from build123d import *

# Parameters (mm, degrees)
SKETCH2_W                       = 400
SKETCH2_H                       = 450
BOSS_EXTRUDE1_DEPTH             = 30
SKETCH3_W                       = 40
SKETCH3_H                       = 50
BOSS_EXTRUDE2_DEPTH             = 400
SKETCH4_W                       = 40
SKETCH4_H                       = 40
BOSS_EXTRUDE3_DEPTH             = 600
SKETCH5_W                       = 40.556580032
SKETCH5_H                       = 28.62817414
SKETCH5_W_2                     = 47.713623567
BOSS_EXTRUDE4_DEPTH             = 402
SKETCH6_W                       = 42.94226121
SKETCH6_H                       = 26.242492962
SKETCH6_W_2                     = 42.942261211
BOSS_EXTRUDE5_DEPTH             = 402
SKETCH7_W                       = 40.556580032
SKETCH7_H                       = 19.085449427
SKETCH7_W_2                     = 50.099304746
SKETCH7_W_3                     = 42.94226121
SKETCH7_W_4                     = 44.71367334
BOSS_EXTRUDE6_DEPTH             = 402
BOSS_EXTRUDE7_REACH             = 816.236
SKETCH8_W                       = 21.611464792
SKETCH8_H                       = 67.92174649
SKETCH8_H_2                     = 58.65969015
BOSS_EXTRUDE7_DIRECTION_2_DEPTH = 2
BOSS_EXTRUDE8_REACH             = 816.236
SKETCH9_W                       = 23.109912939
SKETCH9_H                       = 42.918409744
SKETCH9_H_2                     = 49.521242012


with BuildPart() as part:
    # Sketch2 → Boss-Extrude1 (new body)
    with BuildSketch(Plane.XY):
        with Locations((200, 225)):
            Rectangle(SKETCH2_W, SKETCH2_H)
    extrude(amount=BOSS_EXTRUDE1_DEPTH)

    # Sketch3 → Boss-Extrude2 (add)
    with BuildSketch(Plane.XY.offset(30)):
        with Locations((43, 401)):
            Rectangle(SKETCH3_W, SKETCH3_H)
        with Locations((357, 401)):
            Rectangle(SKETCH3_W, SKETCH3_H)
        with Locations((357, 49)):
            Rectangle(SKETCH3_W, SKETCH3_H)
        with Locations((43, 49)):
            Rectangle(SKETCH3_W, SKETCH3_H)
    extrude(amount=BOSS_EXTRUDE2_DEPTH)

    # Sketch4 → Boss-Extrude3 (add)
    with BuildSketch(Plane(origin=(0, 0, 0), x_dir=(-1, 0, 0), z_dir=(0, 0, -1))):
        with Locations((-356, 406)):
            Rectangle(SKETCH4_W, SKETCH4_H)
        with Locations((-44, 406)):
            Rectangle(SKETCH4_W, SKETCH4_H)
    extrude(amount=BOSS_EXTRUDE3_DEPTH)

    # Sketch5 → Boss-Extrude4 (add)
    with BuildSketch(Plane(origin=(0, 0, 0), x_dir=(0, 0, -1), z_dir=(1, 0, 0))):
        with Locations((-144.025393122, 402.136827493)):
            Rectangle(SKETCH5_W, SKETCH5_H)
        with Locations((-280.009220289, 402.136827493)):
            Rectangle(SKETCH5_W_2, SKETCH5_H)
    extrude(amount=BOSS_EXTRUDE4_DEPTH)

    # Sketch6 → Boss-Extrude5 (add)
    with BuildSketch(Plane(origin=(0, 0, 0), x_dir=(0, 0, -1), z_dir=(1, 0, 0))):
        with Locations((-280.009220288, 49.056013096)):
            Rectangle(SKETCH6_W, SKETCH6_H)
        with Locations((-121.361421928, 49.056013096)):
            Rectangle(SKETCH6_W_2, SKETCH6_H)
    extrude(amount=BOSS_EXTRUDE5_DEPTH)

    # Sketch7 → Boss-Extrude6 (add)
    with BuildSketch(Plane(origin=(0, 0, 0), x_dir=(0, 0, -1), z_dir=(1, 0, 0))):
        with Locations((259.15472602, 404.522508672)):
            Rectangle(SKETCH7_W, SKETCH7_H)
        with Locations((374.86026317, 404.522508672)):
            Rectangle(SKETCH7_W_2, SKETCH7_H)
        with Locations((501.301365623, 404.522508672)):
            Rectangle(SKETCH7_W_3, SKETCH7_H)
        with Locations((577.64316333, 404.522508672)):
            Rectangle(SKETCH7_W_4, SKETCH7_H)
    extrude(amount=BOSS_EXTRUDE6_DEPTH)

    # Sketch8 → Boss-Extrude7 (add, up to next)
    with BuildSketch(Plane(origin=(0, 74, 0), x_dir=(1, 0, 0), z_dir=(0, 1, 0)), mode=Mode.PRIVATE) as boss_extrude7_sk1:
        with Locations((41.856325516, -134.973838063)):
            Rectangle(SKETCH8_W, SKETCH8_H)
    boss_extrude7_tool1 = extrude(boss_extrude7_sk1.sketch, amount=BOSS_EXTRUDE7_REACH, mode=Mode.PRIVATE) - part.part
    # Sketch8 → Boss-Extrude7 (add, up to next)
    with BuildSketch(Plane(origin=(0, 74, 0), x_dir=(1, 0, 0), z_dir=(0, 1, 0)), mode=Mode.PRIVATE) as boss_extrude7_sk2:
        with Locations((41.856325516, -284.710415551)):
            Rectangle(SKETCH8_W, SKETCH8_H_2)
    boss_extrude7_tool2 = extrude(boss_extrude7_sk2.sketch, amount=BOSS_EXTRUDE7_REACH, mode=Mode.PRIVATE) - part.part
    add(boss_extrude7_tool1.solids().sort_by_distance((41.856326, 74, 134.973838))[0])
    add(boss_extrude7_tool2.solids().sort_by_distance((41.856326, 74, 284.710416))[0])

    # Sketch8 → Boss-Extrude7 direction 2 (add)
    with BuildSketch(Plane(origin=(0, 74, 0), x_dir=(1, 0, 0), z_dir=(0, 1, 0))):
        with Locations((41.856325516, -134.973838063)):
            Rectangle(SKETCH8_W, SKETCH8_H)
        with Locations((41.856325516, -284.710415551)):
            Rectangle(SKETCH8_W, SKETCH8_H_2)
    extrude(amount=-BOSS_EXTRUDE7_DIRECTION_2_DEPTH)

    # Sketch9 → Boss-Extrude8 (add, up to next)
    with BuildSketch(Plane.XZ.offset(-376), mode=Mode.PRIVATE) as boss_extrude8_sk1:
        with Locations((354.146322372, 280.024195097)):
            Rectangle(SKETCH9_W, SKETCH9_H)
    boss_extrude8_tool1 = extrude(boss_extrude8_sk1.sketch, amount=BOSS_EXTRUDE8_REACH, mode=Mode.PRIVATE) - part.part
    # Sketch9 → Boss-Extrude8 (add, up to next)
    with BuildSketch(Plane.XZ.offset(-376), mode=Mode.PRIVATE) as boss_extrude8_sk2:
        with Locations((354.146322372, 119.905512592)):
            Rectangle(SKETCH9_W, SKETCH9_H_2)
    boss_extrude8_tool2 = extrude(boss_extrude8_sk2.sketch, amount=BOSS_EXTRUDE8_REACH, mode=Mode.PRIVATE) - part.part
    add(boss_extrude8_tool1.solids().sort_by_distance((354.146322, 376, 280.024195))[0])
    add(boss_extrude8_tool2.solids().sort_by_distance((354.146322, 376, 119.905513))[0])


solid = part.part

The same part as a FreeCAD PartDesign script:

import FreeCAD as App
import Part
import Sketcher
from FreeCAD import Vector

doc = App.newDocument("Part")
body = doc.addObject("PartDesign::Body", "Body")

# Sketch on XY plane
sketch1 = doc.addObject("Sketcher::SketchObject", "Sketch")
body.addObject(sketch1)
sketch1.AttachmentSupport = (doc.XY_Plane, [""])
sketch1.MapMode = "FlatFace"
sketch1.addGeometry([
    Part.LineSegment(Vector(0, 450, 0), Vector(0, 0, 0)),
    Part.LineSegment(Vector(0, 0, 0), Vector(400, 0, 0)),
    Part.LineSegment(Vector(400, 0, 0), Vector(400, 450, 0)),
    Part.LineSegment(Vector(400, 450, 0), Vector(0, 450, 0)),
], False)
sketch1.addConstraint([
    Sketcher.Constraint("Coincident", 0, 2, 1, 1),
    Sketcher.Constraint("Coincident", 1, 2, 2, 1),
    Sketcher.Constraint("Coincident", 2, 2, 3, 1),
    Sketcher.Constraint("Coincident", 3, 2, 0, 1),
    Sketcher.Constraint("Vertical", 0),
    Sketcher.Constraint("Horizontal", 1),
    Sketcher.Constraint("Vertical", 2),
    Sketcher.Constraint("Horizontal", 3),
    Sketcher.Constraint("Coincident", 0, 2, -1, 1),
    Sketcher.Constraint("DistanceX", 1, 1, 1, 2, 400.0),
    Sketcher.Constraint("DistanceY", 0, 2, 0, 1, 450.0),
])
pad1 = doc.addObject("PartDesign::Pad", "Pad")
body.addObject(pad1)
pad1.Profile = sketch1
pad1.Length = 30

# Sketch on XY plane
sketch2 = doc.addObject("Sketcher::SketchObject", "Sketch001")
body.addObject(sketch2)
sketch2.AttachmentSupport = (doc.XY_Plane, [""])
sketch2.MapMode = "FlatFace"
sketch2.AttachmentOffset = App.Placement(Vector(0, 0, 30), App.Rotation())
sketch2.addGeometry([
    Part.LineSegment(Vector(23, 426, 0), Vector(23, 376, 0)),  # 0
    Part.LineSegment(Vector(23, 376, 0), Vector(63, 376, 0)),  # 1
    Part.LineSegment(Vector(63, 376, 0), Vector(63, 426, 0)),  # 2
    Part.LineSegment(Vector(63, 426, 0), Vector(23, 426, 0)),  # 3
    Part.LineSegment(Vector(337, 426, 0), Vector(337, 376, 0)),  # 4
    Part.LineSegment(Vector(337, 376, 0), Vector(377, 376, 0)),  # 5
    Part.LineSegment(Vector(377, 376, 0), Vector(377, 426, 0)),  # 6
    Part.LineSegment(Vector(377, 426, 0), Vector(337, 426, 0)),  # 7
    Part.LineSegment(Vector(337, 74, 0), Vector(337, 24, 0)),  # 8
    Part.LineSegment(Vector(337, 24, 0), Vector(377, 24, 0)),  # 9
    Part.LineSegment(Vector(377, 24, 0), Vector(377, 74, 0)),  # 10
    Part.LineSegment(Vector(377, 74, 0), Vector(337, 74, 0)),  # 11
    Part.LineSegment(Vector(23, 74, 0), Vector(23, 24, 0)),  # 12
    Part.LineSegment(Vector(23, 24, 0), Vector(63, 24, 0)),  # 13
    Part.LineSegment(Vector(63, 24, 0), Vector(63, 74, 0)),  # 14
    Part.LineSegment(Vector(63, 74, 0), Vector(23, 74, 0)),  # 15
], False)
sketch2.addConstraint([
    Sketcher.Constraint("Coincident", 0, 2, 1, 1),
    Sketcher.Constraint("Coincident", 1, 2, 2, 1),
    Sketcher.Constraint("Coincident", 2, 2, 3, 1),
    Sketcher.Constraint("Coincident", 3, 2, 0, 1),
    Sketcher.Constraint("Coincident", 4, 2, 5, 1),
    Sketcher.Constraint("Coincident", 5, 2, 6, 1),
    Sketcher.Constraint("Coincident", 6, 2, 7, 1),
    Sketcher.Constraint("Coincident", 7, 2, 4, 1),
    Sketcher.Constraint("Coincident", 8, 2, 9, 1),
    Sketcher.Constraint("Coincident", 9, 2, 10, 1),
    Sketcher.Constraint("Coincident", 10, 2, 11, 1),
    Sketcher.Constraint("Coincident", 11, 2, 8, 1),
    Sketcher.Constraint("Coincident", 12, 2, 13, 1),
    Sketcher.Constraint("Coincident", 13, 2, 14, 1),
    Sketcher.Constraint("Coincident", 14, 2, 15, 1),
    Sketcher.Constraint("Coincident", 15, 2, 12, 1),
    Sketcher.Constraint("Vertical", 0),
    Sketcher.Constraint("Horizontal", 1),
    Sketcher.Constraint("Vertical", 2),
    Sketcher.Constraint("Horizontal", 3),
    Sketcher.Constraint("Vertical", 4),
    Sketcher.Constraint("Horizontal", 5),
    Sketcher.Constraint("Vertical", 6),
    Sketcher.Constraint("Horizontal", 7),
    Sketcher.Constraint("Vertical", 8),
    Sketcher.Constraint("Horizontal", 9),
    Sketcher.Constraint("Vertical", 10),
    Sketcher.Constraint("Horizontal", 11),
    Sketcher.Constraint("Vertical", 12),
    Sketcher.Constraint("Horizontal", 13),
    Sketcher.Constraint("Vertical", 14),
    Sketcher.Constraint("Horizontal", 15),
    Sketcher.Constraint("Horizontal", 1, 2, 4, 2),
    Sketcher.Constraint("Horizontal", 3, 2, 6, 2),
    Sketcher.Constraint("Horizontal", 9, 2, 12, 2),
    Sketcher.Constraint("Horizontal", 11, 2, 14, 2),
    Sketcher.Constraint("Vertical", 7, 2, 8, 2),
    Sketcher.Constraint("Vertical", 6, 2, 9, 2),
    Sketcher.Constraint("Vertical", 3, 2, 12, 2),
    Sketcher.Constraint("Vertical", 2, 2, 13, 2),
    Sketcher.Constraint("Equal", 3, 5),
    Sketcher.Constraint("Equal", 6, 8),
    Sketcher.Constraint("DistanceX", 1, 1, 1, 2, 40.0),
    Sketcher.Constraint("DistanceY", 0, 2, 0, 1, 50.0),
    Sketcher.Constraint("DistanceX", -1, 1, 0, 2, 23.0),
    Sketcher.Constraint("DistanceY", -1, 1, 0, 2, 376.0),
    Sketcher.Constraint("DistanceX", -1, 1, 4, 2, 337.0),
    Sketcher.Constraint("DistanceY", -1, 1, 8, 2, 24.0),
])
pad2 = doc.addObject("PartDesign::Pad", "Pad001")
body.addObject(pad2)
pad2.Profile = sketch2
pad2.Length = 400

# Sketch on XY plane
sketch3 = doc.addObject("Sketcher::SketchObject", "Sketch002")
body.addObject(sketch3)
sketch3.AttachmentSupport = (doc.XY_Plane, [""])
sketch3.MapMode = "FlatFace"
sketch3.addGeometry([
    Part.LineSegment(Vector(376, 426, 0), Vector(376, 386, 0)),  # 0
    Part.LineSegment(Vector(376, 386, 0), Vector(336, 386, 0)),  # 1
    Part.LineSegment(Vector(336, 386, 0), Vector(336, 426, 0)),  # 2
    Part.LineSegment(Vector(336, 426, 0), Vector(376, 426, 0)),  # 3
    Part.LineSegment(Vector(64, 426, 0), Vector(64, 386, 0)),  # 4
    Part.LineSegment(Vector(64, 386, 0), Vector(24, 386, 0)),  # 5
    Part.LineSegment(Vector(24, 386, 0), Vector(24, 426, 0)),  # 6
    Part.LineSegment(Vector(24, 426, 0), Vector(64, 426, 0)),  # 7
], False)
sketch3.addConstraint([
    Sketcher.Constraint("Coincident", 0, 2, 1, 1),
    Sketcher.Constraint("Coincident", 1, 2, 2, 1),
    Sketcher.Constraint("Coincident", 2, 2, 3, 1),
    Sketcher.Constraint("Coincident", 3, 2, 0, 1),
    Sketcher.Constraint("Coincident", 4, 2, 5, 1),
    Sketcher.Constraint("Coincident", 5, 2, 6, 1),
    Sketcher.Constraint("Coincident", 6, 2, 7, 1),
    Sketcher.Constraint("Coincident", 7, 2, 4, 1),
    Sketcher.Constraint("Vertical", 0),
    Sketcher.Constraint("Horizontal", 1),
    Sketcher.Constraint("Vertical", 2),
    Sketcher.Constraint("Horizontal", 3),
    Sketcher.Constraint("Vertical", 4),
    Sketcher.Constraint("Horizontal", 5),
    Sketcher.Constraint("Vertical", 6),
    Sketcher.Constraint("Horizontal", 7),
    Sketcher.Constraint("Horizontal", 1, 2, 4, 2),
    Sketcher.Constraint("Horizontal", 3, 2, 6, 2),
    Sketcher.Constraint("Equal", 3, 5),
    Sketcher.Constraint("Equal", 7, 0),
    Sketcher.Constraint("DistanceX", 1, 2, 1, 1, 40.0),
    Sketcher.Constraint("DistanceX", -1, 1, 0, 2, 376.0),
    Sketcher.Constraint("DistanceY", -1, 1, 0, 2, 386.0),
    Sketcher.Constraint("DistanceX", -1, 1, 4, 2, 64.0),
])
pad3 = doc.addObject("PartDesign::Pad", "Pad002")
body.addObject(pad3)
pad3.Profile = sketch3
pad3.Length = 600
pad3.Reversed = True

# Sketch on YZ plane
sketch4 = doc.addObject("Sketcher::SketchObject", "Sketch003")
body.addObject(sketch4)
sketch4.AttachmentSupport = (doc.YZ_Plane, [""])
sketch4.MapMode = "FlatFace"
sketch4.addGeometry([
    Part.LineSegment(Vector(416, 164, 0), Vector(388, 164, 0)),  # 0
    Part.LineSegment(Vector(388, 164, 0), Vector(388, 124, 0)),  # 1
    Part.LineSegment(Vector(388, 124, 0), Vector(416, 124, 0)),  # 2
    Part.LineSegment(Vector(416, 124, 0), Vector(416, 164, 0)),  # 3
    Part.LineSegment(Vector(416, 304, 0), Vector(388, 304, 0)),  # 4
    Part.LineSegment(Vector(388, 304, 0), Vector(388, 256, 0)),  # 5
    Part.LineSegment(Vector(388, 256, 0), Vector(416, 256, 0)),  # 6
    Part.LineSegment(Vector(416, 256, 0), Vector(416, 304, 0)),  # 7
], False)
sketch4.addConstraint([
    Sketcher.Constraint("Coincident", 0, 2, 1, 1),
    Sketcher.Constraint("Coincident", 1, 2, 2, 1),
    Sketcher.Constraint("Coincident", 2, 2, 3, 1),
    Sketcher.Constraint("Coincident", 3, 2, 0, 1),
    Sketcher.Constraint("Coincident", 4, 2, 5, 1),
    Sketcher.Constraint("Coincident", 5, 2, 6, 1),
    Sketcher.Constraint("Coincident", 6, 2, 7, 1),
    Sketcher.Constraint("Coincident", 7, 2, 4, 1),
    Sketcher.Constraint("Horizontal", 0),
    Sketcher.Constraint("Vertical", 1),
    Sketcher.Constraint("Horizontal", 2),
    Sketcher.Constraint("Vertical", 3),
    Sketcher.Constraint("Horizontal", 4),
    Sketcher.Constraint("Vertical", 5),
    Sketcher.Constraint("Horizontal", 6),
    Sketcher.Constraint("Vertical", 7),
    Sketcher.Constraint("Vertical", 1, 2, 4, 2),
    Sketcher.Constraint("Vertical", 3, 2, 6, 2),
    Sketcher.Constraint("DistanceY", 1, 2, 1, 1, 40.55658),
    Sketcher.Constraint("DistanceX", 0, 2, 0, 1, 28.628174),
    Sketcher.Constraint("DistanceY", 5, 2, 5, 1, 47.713624),
    Sketcher.Constraint("DistanceX", -1, 1, 0, 2, 387.82274),
    Sketcher.Constraint("DistanceY", -1, 1, 5, 2, 256.152409),
    Sketcher.Constraint("DistanceY", 0, 2, 4, 2, 139.562349),
])
pad4 = doc.addObject("PartDesign::Pad", "Pad003")
body.addObject(pad4)
pad4.Profile = sketch4
pad4.Length = 402

# Sketch on YZ plane
sketch5 = doc.addObject("Sketcher::SketchObject", "Sketch004")
body.addObject(sketch5)
sketch5.AttachmentSupport = (doc.YZ_Plane, [""])
sketch5.MapMode = "FlatFace"
sketch5.addGeometry([
    Part.LineSegment(Vector(62, 301, 0), Vector(36, 301, 0)),  # 0
    Part.LineSegment(Vector(36, 301, 0), Vector(36, 259, 0)),  # 1
    Part.LineSegment(Vector(36, 259, 0), Vector(62, 259, 0)),  # 2
    Part.LineSegment(Vector(62, 259, 0), Vector(62, 301, 0)),  # 3
    Part.LineSegment(Vector(62, 143, 0), Vector(36, 143, 0)),  # 4
    Part.LineSegment(Vector(36, 143, 0), Vector(36, 100, 0)),  # 5
    Part.LineSegment(Vector(36, 100, 0), Vector(62, 100, 0)),  # 6
    Part.LineSegment(Vector(62, 100, 0), Vector(62, 143, 0)),  # 7
], False)
sketch5.addConstraint([
    Sketcher.Constraint("Coincident", 0, 2, 1, 1),
    Sketcher.Constraint("Coincident", 1, 2, 2, 1),
    Sketcher.Constraint("Coincident", 2, 2, 3, 1),
    Sketcher.Constraint("Coincident", 3, 2, 0, 1),
    Sketcher.Constraint("Coincident", 4, 2, 5, 1),
    Sketcher.Constraint("Coincident", 5, 2, 6, 1),
    Sketcher.Constraint("Coincident", 6, 2, 7, 1),
    Sketcher.Constraint("Coincident", 7, 2, 4, 1),
    Sketcher.Constraint("Horizontal", 0),
    Sketcher.Constraint("Vertical", 1),
    Sketcher.Constraint("Horizontal", 2),
    Sketcher.Constraint("Vertical", 3),
    Sketcher.Constraint("Horizontal", 4),
    Sketcher.Constraint("Vertical", 5),
    Sketcher.Constraint("Horizontal", 6),
    Sketcher.Constraint("Vertical", 7),
    Sketcher.Constraint("Vertical", 1, 2, 4, 2),
    Sketcher.Constraint("Vertical", 3, 2, 6, 2),
    Sketcher.Constraint("Equal", 3, 5),
    Sketcher.Constraint("DistanceY", 1, 2, 1, 1, 42.942261),
    Sketcher.Constraint("DistanceY", 4, 2, 0, 2, 158.647798),
    Sketcher.Constraint("DistanceX", 0, 2, 0, 1, 26.242493),
    Sketcher.Constraint("DistanceY", -1, 1, 0, 2, 301.480351),
    Sketcher.Constraint("DistanceX", -1, 1, 2, 2, 62.17726),
])
pad5 = doc.addObject("PartDesign::Pad", "Pad004")
body.addObject(pad5)
pad5.Profile = sketch5
pad5.Length = 402

# Sketch on YZ plane
sketch6 = doc.addObject("Sketcher::SketchObject", "Sketch005")
body.addObject(sketch6)
sketch6.AttachmentSupport = (doc.YZ_Plane, [""])
sketch6.MapMode = "FlatFace"
sketch6.addGeometry([
    Part.LineSegment(Vector(414, -239, 0), Vector(395, -239, 0)),  # 0
    Part.LineSegment(Vector(395, -239, 0), Vector(395, -279, 0)),  # 1
    Part.LineSegment(Vector(395, -279, 0), Vector(414, -279, 0)),  # 2
    Part.LineSegment(Vector(414, -279, 0), Vector(414, -239, 0)),  # 3
    Part.LineSegment(Vector(414, -350, 0), Vector(395, -350, 0)),  # 4
    Part.LineSegment(Vector(395, -350, 0), Vector(395, -400, 0)),  # 5
    Part.LineSegment(Vector(395, -400, 0), Vector(414, -400, 0)),  # 6
    Part.LineSegment(Vector(414, -400, 0), Vector(414, -350, 0)),  # 7
    Part.LineSegment(Vector(414, -480, 0), Vector(395, -480, 0)),  # 8
    Part.LineSegment(Vector(395, -480, 0), Vector(395, -523, 0)),  # 9
    Part.LineSegment(Vector(395, -523, 0), Vector(414, -523, 0)),  # 10
    Part.LineSegment(Vector(414, -523, 0), Vector(414, -480, 0)),  # 11
    Part.LineSegment(Vector(414, -555, 0), Vector(395, -555, 0)),  # 12
    Part.LineSegment(Vector(395, -555, 0), Vector(395, -600, 0)),  # 13
    Part.LineSegment(Vector(395, -600, 0), Vector(414, -600, 0)),  # 14
    Part.LineSegment(Vector(414, -600, 0), Vector(414, -555, 0)),  # 15
], False)
sketch6.addConstraint([
    Sketcher.Constraint("Coincident", 0, 2, 1, 1),
    Sketcher.Constraint("Coincident", 1, 2, 2, 1),
    Sketcher.Constraint("Coincident", 2, 2, 3, 1),
    Sketcher.Constraint("Coincident", 3, 2, 0, 1),
    Sketcher.Constraint("Coincident", 4, 2, 5, 1),
    Sketcher.Constraint("Coincident", 5, 2, 6, 1),
    Sketcher.Constraint("Coincident", 6, 2, 7, 1),
    Sketcher.Constraint("Coincident", 7, 2, 4, 1),
    Sketcher.Constraint("Coincident", 8, 2, 9, 1),
    Sketcher.Constraint("Coincident", 9, 2, 10, 1),
    Sketcher.Constraint("Coincident", 10, 2, 11, 1),
    Sketcher.Constraint("Coincident", 11, 2, 8, 1),
    Sketcher.Constraint("Coincident", 12, 2, 13, 1),
    Sketcher.Constraint("Coincident", 13, 2, 14, 1),
    Sketcher.Constraint("Coincident", 14, 2, 15, 1),
    Sketcher.Constraint("Coincident", 15, 2, 12, 1),
    Sketcher.Constraint("Horizontal", 0),
    Sketcher.Constraint("Vertical", 1),
    Sketcher.Constraint("Horizontal", 2),
    Sketcher.Constraint("Vertical", 3),
    Sketcher.Constraint("Horizontal", 4),
    Sketcher.Constraint("Vertical", 5),
    Sketcher.Constraint("Horizontal", 6),
    Sketcher.Constraint("Vertical", 7),
    Sketcher.Constraint("Horizontal", 8),
    Sketcher.Constraint("Vertical", 9),
    Sketcher.Constraint("Horizontal", 10),
    Sketcher.Constraint("Vertical", 11),
    Sketcher.Constraint("Horizontal", 12),
    Sketcher.Constraint("Vertical", 13),
    Sketcher.Constraint("Horizontal", 14),
    Sketcher.Constraint("Vertical", 15),
    Sketcher.Constraint("Vertical", 1, 2, 4, 2),
    Sketcher.Constraint("Vertical", 3, 2, 6, 2),
    Sketcher.Constraint("Vertical", 5, 2, 8, 2),
    Sketcher.Constraint("Vertical", 7, 2, 10, 2),
    Sketcher.Constraint("Vertical", 9, 2, 12, 2),
    Sketcher.Constraint("Vertical", 11, 2, 14, 2),
    Sketcher.Constraint("DistanceY", 13, 2, -1, 1, 600.0),
    Sketcher.Constraint("DistanceX", 0, 2, 0, 1, 19.085449),
    Sketcher.Constraint("DistanceY", 1, 2, 1, 1, 40.55658),
    Sketcher.Constraint("DistanceY", 9, 2, 9, 1, 42.942261),
    Sketcher.Constraint("DistanceY", 5, 2, 1, 2, 120.4769),
    Sketcher.Constraint("DistanceY", 5, 2, 5, 1, 50.099305),
    Sketcher.Constraint("DistanceY", 13, 2, 13, 1, 44.713673),
    Sketcher.Constraint("DistanceY", 4, 2, -1, 1, 349.810611),
    Sketcher.Constraint("DistanceY", 8, 2, 5, 2, 79.920319),
    Sketcher.Constraint("DistanceX", -1, 1, 0, 2, 394.979784),
])
pad6 = doc.addObject("PartDesign::Pad", "Pad005")
body.addObject(pad6)
pad6.Profile = sketch6
pad6.Length = 402

# Sketch on XZ plane
sketch7 = doc.addObject("Sketcher::SketchObject", "Sketch006")
body.addObject(sketch7)
sketch7.AttachmentSupport = (doc.XZ_Plane, [""])
sketch7.MapMode = "FlatFace"
sketch7.AttachmentOffset = App.Placement(Vector(0, 0, -74), App.Rotation())
sketch7.addGeometry([
    Part.LineSegment(Vector(31, 101, 0), Vector(31, 169, 0)),
    Part.LineSegment(Vector(31, 169, 0), Vector(53, 169, 0)),
    Part.LineSegment(Vector(53, 169, 0), Vector(53, 101, 0)),
    Part.LineSegment(Vector(53, 101, 0), Vector(31, 101, 0)),
], False)
sketch7.addConstraint([
    Sketcher.Constraint("Coincident", 0, 2, 1, 1),
    Sketcher.Constraint("Coincident", 1, 2, 2, 1),
    Sketcher.Constraint("Coincident", 2, 2, 3, 1),
    Sketcher.Constraint("Coincident", 3, 2, 0, 1),
    Sketcher.Constraint("Vertical", 0),
    Sketcher.Constraint("Horizontal", 1),
    Sketcher.Constraint("Vertical", 2),
    Sketcher.Constraint("Horizontal", 3),
    Sketcher.Constraint("DistanceX", 1, 1, 1, 2, 21.611465),
    Sketcher.Constraint("DistanceY", 0, 1, 0, 2, 67.921746),
    Sketcher.Constraint("DistanceY", -1, 1, 0, 2, 168.934711),
    Sketcher.Constraint("DistanceX", -1, 1, 0, 2, 31.050593),
])
pad7 = doc.addObject("PartDesign::Pad", "Pad006")
body.addObject(pad7)
pad7.Profile = sketch7
pad7.Type = "UpToFirst"
pad7.Reversed = True

# Sketch on XZ plane
sketch8 = doc.addObject("Sketcher::SketchObject", "Sketch007")
body.addObject(sketch8)
sketch8.AttachmentSupport = (doc.XZ_Plane, [""])
sketch8.MapMode = "FlatFace"
sketch8.AttachmentOffset = App.Placement(Vector(0, 0, -74), App.Rotation())
sketch8.addGeometry([
    Part.LineSegment(Vector(31, 255, 0), Vector(31, 314, 0)),
    Part.LineSegment(Vector(31, 314, 0), Vector(53, 314, 0)),
    Part.LineSegment(Vector(53, 314, 0), Vector(53, 255, 0)),
    Part.LineSegment(Vector(53, 255, 0), Vector(31, 255, 0)),
], False)
sketch8.addConstraint([
    Sketcher.Constraint("Coincident", 0, 2, 1, 1),
    Sketcher.Constraint("Coincident", 1, 2, 2, 1),
    Sketcher.Constraint("Coincident", 2, 2, 3, 1),
    Sketcher.Constraint("Coincident", 3, 2, 0, 1),
    Sketcher.Constraint("Vertical", 0),
    Sketcher.Constraint("Horizontal", 1),
    Sketcher.Constraint("Vertical", 2),
    Sketcher.Constraint("Horizontal", 3),
    Sketcher.Constraint("DistanceY", 0, 1, 0, 2, 58.65969),
    Sketcher.Constraint("DistanceX", 1, 1, 1, 2, 21.611465),
    Sketcher.Constraint("DistanceY", -1, 1, 0, 2, 314.040261),
    Sketcher.Constraint("DistanceX", -1, 1, 0, 2, 31.050593),
])
pad8 = doc.addObject("PartDesign::Pad", "Pad007")
body.addObject(pad8)
pad8.Profile = sketch8
pad8.Type = "UpToFirst"
pad8.Reversed = True

# Sketch on XZ plane
sketch9 = doc.addObject("Sketcher::SketchObject", "Sketch008")
body.addObject(sketch9)
sketch9.AttachmentSupport = (doc.XZ_Plane, [""])
sketch9.MapMode = "FlatFace"
sketch9.AttachmentOffset = App.Placement(Vector(0, 0, -74), App.Rotation())
sketch9.addGeometry([
    Part.LineSegment(Vector(31, 101, 0), Vector(31, 169, 0)),  # 0
    Part.LineSegment(Vector(31, 169, 0), Vector(53, 169, 0)),  # 1
    Part.LineSegment(Vector(53, 169, 0), Vector(53, 101, 0)),  # 2
    Part.LineSegment(Vector(53, 101, 0), Vector(31, 101, 0)),  # 3
    Part.LineSegment(Vector(31, 255, 0), Vector(31, 314, 0)),  # 4
    Part.LineSegment(Vector(31, 314, 0), Vector(53, 314, 0)),  # 5
    Part.LineSegment(Vector(53, 314, 0), Vector(53, 255, 0)),  # 6
    Part.LineSegment(Vector(53, 255, 0), Vector(31, 255, 0)),  # 7
], False)
sketch9.addConstraint([
    Sketcher.Constraint("Coincident", 0, 2, 1, 1),
    Sketcher.Constraint("Coincident", 1, 2, 2, 1),
    Sketcher.Constraint("Coincident", 2, 2, 3, 1),
    Sketcher.Constraint("Coincident", 3, 2, 0, 1),
    Sketcher.Constraint("Coincident", 4, 2, 5, 1),
    Sketcher.Constraint("Coincident", 5, 2, 6, 1),
    Sketcher.Constraint("Coincident", 6, 2, 7, 1),
    Sketcher.Constraint("Coincident", 7, 2, 4, 1),
    Sketcher.Constraint("Vertical", 0),
    Sketcher.Constraint("Horizontal", 1),
    Sketcher.Constraint("Vertical", 2),
    Sketcher.Constraint("Horizontal", 3),
    Sketcher.Constraint("Vertical", 4),
    Sketcher.Constraint("Horizontal", 5),
    Sketcher.Constraint("Vertical", 6),
    Sketcher.Constraint("Horizontal", 7),
    Sketcher.Constraint("Vertical", 3, 2, 4, 2),
    Sketcher.Constraint("Vertical", 2, 2, 5, 2),
    Sketcher.Constraint("DistanceY", 4, 1, 4, 2, 58.65969),
    Sketcher.Constraint("DistanceX", 1, 1, 1, 2, 21.611465),
    Sketcher.Constraint("DistanceY", 0, 1, 0, 2, 67.921746),
    Sketcher.Constraint("DistanceY", -1, 1, 0, 2, 168.934711),
    Sketcher.Constraint("DistanceY", -1, 1, 4, 2, 314.040261),
    Sketcher.Constraint("DistanceX", -1, 1, 0, 2, 31.050593),
])
pad9 = doc.addObject("PartDesign::Pad", "Pad008")
body.addObject(pad9)
pad9.Profile = sketch9
pad9.Length = 2

# Sketch on XZ plane
sketch10 = doc.addObject("Sketcher::SketchObject", "Sketch009")
body.addObject(sketch10)
sketch10.AttachmentSupport = (doc.XZ_Plane, [""])
sketch10.MapMode = "FlatFace"
sketch10.AttachmentOffset = App.Placement(Vector(0, 0, -376), App.Rotation())
sketch10.addGeometry([
    Part.LineSegment(Vector(343, 301, 0), Vector(343, 259, 0)),
    Part.LineSegment(Vector(343, 259, 0), Vector(366, 259, 0)),
    Part.LineSegment(Vector(366, 259, 0), Vector(366, 301, 0)),
    Part.LineSegment(Vector(366, 301, 0), Vector(343, 301, 0)),
], False)
sketch10.addConstraint([
    Sketcher.Constraint("Coincident", 0, 2, 1, 1),
    Sketcher.Constraint("Coincident", 1, 2, 2, 1),
    Sketcher.Constraint("Coincident", 2, 2, 3, 1),
    Sketcher.Constraint("Coincident", 3, 2, 0, 1),
    Sketcher.Constraint("Vertical", 0),
    Sketcher.Constraint("Horizontal", 1),
    Sketcher.Constraint("Vertical", 2),
    Sketcher.Constraint("Horizontal", 3),
    Sketcher.Constraint("DistanceY", 0, 2, 0, 1, 42.91841),
    Sketcher.Constraint("DistanceY", -1, 1, 2, 2, 301.4834),
    Sketcher.Constraint("DistanceX", 1, 1, 1, 2, 23.109913),
    Sketcher.Constraint("DistanceX", -1, 1, 1, 2, 365.701279),
])
pad10 = doc.addObject("PartDesign::Pad", "Pad009")
body.addObject(pad10)
pad10.Profile = sketch10
pad10.Type = "UpToFirst"

# Sketch on XZ plane
sketch11 = doc.addObject("Sketcher::SketchObject", "Sketch010")
body.addObject(sketch11)
sketch11.AttachmentSupport = (doc.XZ_Plane, [""])
sketch11.MapMode = "FlatFace"
sketch11.AttachmentOffset = App.Placement(Vector(0, 0, -376), App.Rotation())
sketch11.addGeometry([
    Part.LineSegment(Vector(343, 145, 0), Vector(343, 95, 0)),
    Part.LineSegment(Vector(343, 95, 0), Vector(366, 95, 0)),
    Part.LineSegment(Vector(366, 95, 0), Vector(366, 145, 0)),
    Part.LineSegment(Vector(366, 145, 0), Vector(343, 145, 0)),
], False)
sketch11.addConstraint([
    Sketcher.Constraint("Coincident", 0, 2, 1, 1),
    Sketcher.Constraint("Coincident", 1, 2, 2, 1),
    Sketcher.Constraint("Coincident", 2, 2, 3, 1),
    Sketcher.Constraint("Coincident", 3, 2, 0, 1),
    Sketcher.Constraint("Vertical", 0),
    Sketcher.Constraint("Horizontal", 1),
    Sketcher.Constraint("Vertical", 2),
    Sketcher.Constraint("Horizontal", 3),
    Sketcher.Constraint("DistanceX", 1, 1, 1, 2, 23.109913),
    Sketcher.Constraint("DistanceY", 0, 2, 0, 1, 49.521242),
    Sketcher.Constraint("DistanceY", -1, 1, 0, 2, 95.144892),
    Sketcher.Constraint("DistanceX", -1, 1, 1, 2, 365.701279),
])
pad11 = doc.addObject("PartDesign::Pad", "Pad010")
body.addObject(pad11)
pad11.Profile = sketch11
pad11.Type = "UpToFirst"

doc.recompute()
